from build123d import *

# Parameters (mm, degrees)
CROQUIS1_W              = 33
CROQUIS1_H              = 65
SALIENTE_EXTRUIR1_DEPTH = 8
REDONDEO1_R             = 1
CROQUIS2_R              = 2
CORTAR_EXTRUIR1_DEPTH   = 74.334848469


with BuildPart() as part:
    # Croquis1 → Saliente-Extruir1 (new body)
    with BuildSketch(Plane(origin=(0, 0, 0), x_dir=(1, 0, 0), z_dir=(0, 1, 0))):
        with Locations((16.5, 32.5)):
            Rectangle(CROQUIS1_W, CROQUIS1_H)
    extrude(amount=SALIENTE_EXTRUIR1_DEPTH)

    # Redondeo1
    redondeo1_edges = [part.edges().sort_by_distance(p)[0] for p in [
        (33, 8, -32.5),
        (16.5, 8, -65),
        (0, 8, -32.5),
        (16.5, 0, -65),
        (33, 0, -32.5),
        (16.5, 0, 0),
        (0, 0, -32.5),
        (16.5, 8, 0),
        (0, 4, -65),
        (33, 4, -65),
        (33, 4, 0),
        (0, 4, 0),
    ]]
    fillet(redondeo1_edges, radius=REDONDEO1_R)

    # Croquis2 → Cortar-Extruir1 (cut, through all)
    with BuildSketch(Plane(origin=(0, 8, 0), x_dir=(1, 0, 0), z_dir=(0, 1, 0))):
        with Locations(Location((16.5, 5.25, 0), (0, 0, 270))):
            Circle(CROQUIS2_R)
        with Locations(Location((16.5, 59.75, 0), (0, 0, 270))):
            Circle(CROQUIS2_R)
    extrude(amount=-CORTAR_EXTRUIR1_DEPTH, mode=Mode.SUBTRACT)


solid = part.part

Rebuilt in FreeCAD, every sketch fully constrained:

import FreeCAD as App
import Part
import Sketcher

V = App.Vector
Q = App.Units.Quantity

doc = App.newDocument("Part")
body = doc.addObject("PartDesign::Body", "Body")

# Sketch on XZ plane
sketch1 = doc.addObject("Sketcher::SketchObject", "Sketch")
body.addObject(sketch1)
sketch1.AttachmentSupport = (doc.XZ_Plane, [""])
sketch1.MapMode = "FlatFace"
sketch1.addGeometry([
    Part.LineSegment(V(0, -65, 0), V(0, 0, 0)),
    Part.LineSegment(V(0, 0, 0), V(33, 0, 0)),
    Part.LineSegment(V(33, 0, 0), V(33, -65, 0)),
    Part.LineSegment(V(33, -65, 0), V(0, -65, 0)),
], False)
sketch1.addConstraint([
    Sketcher.Constraint("Coincident", 0, 2, 1, 1),
    Sketcher.Constraint("Coincident", 1, 2, 2, 1),
    Sketcher.Constraint("Coincident", 2, 2, 3, 1),
    Sketcher.Constraint("Coincident", 3, 2, 0, 1),
    Sketcher.Constraint("Vertical", 0),
    Sketcher.Constraint("Horizontal", 1),
    Sketcher.Constraint("Vertical", 2),
    Sketcher.Constraint("Horizontal", 3),
    Sketcher.Constraint("Coincident", 0, 2, -1, 1),
    Sketcher.Constraint("DistanceX", 1, 1, 1, 2, Q("33 mm")),
    Sketcher.Constraint("DistanceY", 0, 1, 0, 2, Q("65 mm")),
])
pad1 = doc.addObject("PartDesign::Pad", "Pad")
body.addObject(pad1)
pad1.Profile = sketch1
pad1.Length = 8
pad1.Reversed = True
doc.recompute()

fillet = doc.addObject("PartDesign::Fillet", "Fillet")
body.addObject(fillet)
fillet.Base = (pad1, ["Edge1"])
fillet.UseAllEdges = True
fillet.Radius = 1

# Sketch on XZ plane
sketch2 = doc.addObject("Sketcher::SketchObject", "Sketch001")
body.addObject(sketch2)
sketch2.AttachmentSupport = (doc.XZ_Plane, [""])
sketch2.MapMode = "FlatFace"
sketch2.AttachmentOffset = App.Placement(V(0, 0, -8), App.Rotation())
sketch2.addGeometry([
    Part.Circle(V(16.5, -5.2, 0), V(0, 0, 1), 2),
    Part.Circle(V(16.5, -59.8, 0), V(0, 0, 1), 2),
], False)
sketch2.addConstraint([
    Sketcher.Constraint("Equal", 0, 1),
    Sketcher.Constraint("Vertical", 0, 3, 1, 3),
    Sketcher.Constraint("Diameter", 0, Q("4 mm")),
    Sketcher.Constraint("DistanceX", -1, 1, 0, 3, Q("16.5 mm")),
    Sketcher.Constraint("DistanceY", 1, 3, 0, 3, Q("54.5 mm")),
    Sketcher.Constraint("DistanceY", 0, 3, -1, 1, Q("5.25 mm")),
])
pocket1 = doc.addObject("PartDesign::Pocket", "Pocket")
body.addObject(pocket1)
pocket1.Profile = sketch2
pocket1.Type = "ThroughAll"
pocket1.Reversed = True

doc.recompute()
